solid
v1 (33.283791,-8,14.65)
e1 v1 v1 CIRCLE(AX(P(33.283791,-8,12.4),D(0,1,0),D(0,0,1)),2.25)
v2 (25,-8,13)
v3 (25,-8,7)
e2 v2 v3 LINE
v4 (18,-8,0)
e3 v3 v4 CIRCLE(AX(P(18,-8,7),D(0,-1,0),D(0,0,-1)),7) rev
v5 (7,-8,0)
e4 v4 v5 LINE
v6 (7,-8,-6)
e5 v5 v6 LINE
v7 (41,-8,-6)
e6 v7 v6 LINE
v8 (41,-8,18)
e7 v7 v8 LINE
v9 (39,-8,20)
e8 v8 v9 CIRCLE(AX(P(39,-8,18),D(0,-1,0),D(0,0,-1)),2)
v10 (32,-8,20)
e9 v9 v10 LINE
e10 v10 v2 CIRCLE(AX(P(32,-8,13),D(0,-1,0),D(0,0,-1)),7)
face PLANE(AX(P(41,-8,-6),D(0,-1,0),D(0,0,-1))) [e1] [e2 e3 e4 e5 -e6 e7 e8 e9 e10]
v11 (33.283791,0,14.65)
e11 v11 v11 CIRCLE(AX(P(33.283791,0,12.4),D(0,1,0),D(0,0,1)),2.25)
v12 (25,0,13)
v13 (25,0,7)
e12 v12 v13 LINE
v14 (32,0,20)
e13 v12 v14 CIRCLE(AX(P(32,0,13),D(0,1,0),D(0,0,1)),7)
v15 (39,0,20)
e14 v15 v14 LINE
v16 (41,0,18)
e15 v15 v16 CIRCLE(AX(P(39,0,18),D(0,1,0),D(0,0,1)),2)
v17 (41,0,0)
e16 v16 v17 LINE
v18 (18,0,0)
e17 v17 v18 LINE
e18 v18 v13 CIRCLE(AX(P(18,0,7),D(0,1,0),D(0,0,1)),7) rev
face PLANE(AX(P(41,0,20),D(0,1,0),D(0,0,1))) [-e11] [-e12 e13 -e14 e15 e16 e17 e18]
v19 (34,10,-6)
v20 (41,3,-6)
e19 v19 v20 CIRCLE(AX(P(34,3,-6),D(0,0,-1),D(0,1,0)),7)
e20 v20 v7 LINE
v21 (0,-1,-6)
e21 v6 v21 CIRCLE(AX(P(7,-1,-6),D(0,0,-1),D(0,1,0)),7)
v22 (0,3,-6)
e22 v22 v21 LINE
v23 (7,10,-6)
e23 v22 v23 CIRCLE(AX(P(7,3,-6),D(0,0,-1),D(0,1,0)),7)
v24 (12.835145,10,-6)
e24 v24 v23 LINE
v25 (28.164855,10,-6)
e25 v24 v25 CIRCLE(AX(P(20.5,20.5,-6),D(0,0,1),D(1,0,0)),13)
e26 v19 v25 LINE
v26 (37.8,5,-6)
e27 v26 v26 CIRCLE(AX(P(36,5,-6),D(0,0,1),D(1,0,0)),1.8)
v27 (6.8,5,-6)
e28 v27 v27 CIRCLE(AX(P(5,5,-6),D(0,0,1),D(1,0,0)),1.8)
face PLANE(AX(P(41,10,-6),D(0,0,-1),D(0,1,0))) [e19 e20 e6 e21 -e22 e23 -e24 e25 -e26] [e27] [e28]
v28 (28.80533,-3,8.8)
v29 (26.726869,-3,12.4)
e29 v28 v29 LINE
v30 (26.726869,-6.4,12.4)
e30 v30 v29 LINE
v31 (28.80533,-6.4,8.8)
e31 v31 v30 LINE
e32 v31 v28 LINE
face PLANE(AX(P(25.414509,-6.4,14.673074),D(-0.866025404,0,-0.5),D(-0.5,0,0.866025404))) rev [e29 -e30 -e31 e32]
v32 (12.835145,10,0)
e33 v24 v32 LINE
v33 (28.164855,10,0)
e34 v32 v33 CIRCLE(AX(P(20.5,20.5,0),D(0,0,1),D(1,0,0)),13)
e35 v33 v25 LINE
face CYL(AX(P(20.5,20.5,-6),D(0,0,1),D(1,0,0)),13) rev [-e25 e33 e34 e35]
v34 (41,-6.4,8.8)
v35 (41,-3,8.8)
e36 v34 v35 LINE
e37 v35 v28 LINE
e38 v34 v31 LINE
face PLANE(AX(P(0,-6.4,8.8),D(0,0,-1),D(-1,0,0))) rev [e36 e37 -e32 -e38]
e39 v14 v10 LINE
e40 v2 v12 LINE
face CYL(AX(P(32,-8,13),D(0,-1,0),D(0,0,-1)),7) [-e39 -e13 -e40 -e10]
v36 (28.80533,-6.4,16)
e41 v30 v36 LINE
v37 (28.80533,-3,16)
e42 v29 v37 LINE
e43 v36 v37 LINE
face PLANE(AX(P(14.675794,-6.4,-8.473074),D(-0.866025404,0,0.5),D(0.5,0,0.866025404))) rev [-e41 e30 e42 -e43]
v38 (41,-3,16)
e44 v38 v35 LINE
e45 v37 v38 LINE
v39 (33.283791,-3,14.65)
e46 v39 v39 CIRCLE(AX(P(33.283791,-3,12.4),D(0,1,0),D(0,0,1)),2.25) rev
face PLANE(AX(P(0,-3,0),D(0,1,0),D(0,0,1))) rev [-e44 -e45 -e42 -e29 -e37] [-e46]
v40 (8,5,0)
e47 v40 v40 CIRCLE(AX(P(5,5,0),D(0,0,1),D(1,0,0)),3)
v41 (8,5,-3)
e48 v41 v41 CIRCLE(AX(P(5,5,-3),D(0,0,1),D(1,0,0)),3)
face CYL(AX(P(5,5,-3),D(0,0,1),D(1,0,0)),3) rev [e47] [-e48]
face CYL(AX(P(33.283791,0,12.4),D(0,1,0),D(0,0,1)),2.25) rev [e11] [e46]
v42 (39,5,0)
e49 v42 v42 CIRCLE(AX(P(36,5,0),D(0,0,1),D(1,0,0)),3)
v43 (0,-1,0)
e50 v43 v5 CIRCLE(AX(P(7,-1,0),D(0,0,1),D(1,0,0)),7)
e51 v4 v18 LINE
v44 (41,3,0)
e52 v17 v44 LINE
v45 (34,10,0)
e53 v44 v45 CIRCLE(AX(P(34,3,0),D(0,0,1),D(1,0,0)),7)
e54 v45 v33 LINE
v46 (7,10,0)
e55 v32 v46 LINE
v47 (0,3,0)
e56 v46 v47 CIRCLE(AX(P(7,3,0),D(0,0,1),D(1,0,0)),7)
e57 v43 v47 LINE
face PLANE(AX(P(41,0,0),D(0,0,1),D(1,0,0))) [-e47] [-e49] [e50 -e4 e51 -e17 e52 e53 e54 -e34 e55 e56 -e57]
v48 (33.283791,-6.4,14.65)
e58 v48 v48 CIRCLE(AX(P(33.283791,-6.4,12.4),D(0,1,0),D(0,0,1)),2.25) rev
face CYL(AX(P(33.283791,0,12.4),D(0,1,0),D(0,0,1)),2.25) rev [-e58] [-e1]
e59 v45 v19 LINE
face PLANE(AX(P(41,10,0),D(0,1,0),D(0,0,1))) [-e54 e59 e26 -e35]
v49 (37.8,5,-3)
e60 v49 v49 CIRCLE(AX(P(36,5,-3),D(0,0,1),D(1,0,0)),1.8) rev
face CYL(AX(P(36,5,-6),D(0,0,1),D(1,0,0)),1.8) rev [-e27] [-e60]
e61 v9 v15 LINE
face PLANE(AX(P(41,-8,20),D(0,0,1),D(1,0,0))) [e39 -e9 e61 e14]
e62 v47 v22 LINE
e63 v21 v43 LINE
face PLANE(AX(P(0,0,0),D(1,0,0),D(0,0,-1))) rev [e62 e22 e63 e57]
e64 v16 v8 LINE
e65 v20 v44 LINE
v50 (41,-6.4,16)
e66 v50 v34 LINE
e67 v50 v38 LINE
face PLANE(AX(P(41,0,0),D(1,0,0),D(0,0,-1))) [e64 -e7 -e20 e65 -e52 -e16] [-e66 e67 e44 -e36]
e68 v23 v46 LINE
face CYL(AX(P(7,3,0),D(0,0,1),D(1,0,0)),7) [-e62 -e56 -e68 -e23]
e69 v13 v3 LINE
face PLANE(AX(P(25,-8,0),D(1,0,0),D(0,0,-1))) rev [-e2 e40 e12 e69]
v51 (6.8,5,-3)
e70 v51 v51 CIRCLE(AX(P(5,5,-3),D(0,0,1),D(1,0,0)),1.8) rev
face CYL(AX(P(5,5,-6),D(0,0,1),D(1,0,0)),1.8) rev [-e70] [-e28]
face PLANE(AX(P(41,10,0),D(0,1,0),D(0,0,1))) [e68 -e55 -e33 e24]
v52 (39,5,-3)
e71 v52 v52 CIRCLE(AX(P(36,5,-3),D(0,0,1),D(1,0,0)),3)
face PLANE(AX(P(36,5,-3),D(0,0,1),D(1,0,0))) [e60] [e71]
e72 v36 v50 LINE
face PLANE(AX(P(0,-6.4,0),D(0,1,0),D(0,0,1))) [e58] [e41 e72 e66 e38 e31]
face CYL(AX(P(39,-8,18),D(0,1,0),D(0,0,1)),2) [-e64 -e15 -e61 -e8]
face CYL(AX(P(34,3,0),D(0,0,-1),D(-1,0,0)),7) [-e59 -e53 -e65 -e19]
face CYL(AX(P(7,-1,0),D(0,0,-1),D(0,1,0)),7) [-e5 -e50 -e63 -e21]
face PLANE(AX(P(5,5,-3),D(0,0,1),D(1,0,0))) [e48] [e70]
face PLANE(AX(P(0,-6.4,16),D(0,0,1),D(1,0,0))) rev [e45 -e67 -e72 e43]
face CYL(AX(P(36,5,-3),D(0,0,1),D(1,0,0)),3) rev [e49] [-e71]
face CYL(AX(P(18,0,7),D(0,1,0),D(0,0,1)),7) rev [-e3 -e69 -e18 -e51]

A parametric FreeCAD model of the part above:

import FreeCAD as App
import Part
import Sketcher
from FreeCAD import Vector
Q = App.Units.Quantity


def edges_at(feature, points):
    """Names of the edges that pass closest to the given points."""
    edges = feature.Shape.Edges
    near = lambda p: min(range(len(edges)), key=lambda i: edges[i].distToShape(Part.Vertex(*p))[0])
    return sorted({f"Edge{near(p) + 1}" for p in points})


def add_polygon(sketch, points):
    """Adds a closed chain of lines whose ends are joined by coincident constraints."""
    first, n = sketch.GeometryCount, len(points)
    for a, b in zip(points, points[1:] + points[:1]):
        sketch.addGeometry(Part.LineSegment(App.Vector(*a, 0), App.Vector(*b, 0)), False)
    for i in range(n):
        sketch.addConstraint(Sketcher.Constraint("Coincident", first + i, 2, first + (i + 1) % n, 1))

doc = App.newDocument("Part")
body = doc.addObject("PartDesign::Body", "Body")

# Sketch on YZ plane
sketch1 = body.newObject("Sketcher::SketchObject", "Sketch")
sketch1.AttachmentSupport = (doc.getObject("YZ_Plane"), [""])
sketch1.MapMode = "FlatFace"
add_polygon(sketch1, [(10, 0), (0, 0), (0, 20), (-8, 20), (-8, -6), (10, -6)])  # lines 0-5
sketch1.addConstraint([
    Sketcher.Constraint("Horizontal", 0),
    Sketcher.Constraint("Vertical", 1),
    Sketcher.Constraint("Horizontal", 2),
    Sketcher.Constraint("Vertical", 3),
    Sketcher.Constraint("Horizontal", 4),
    Sketcher.Constraint("Vertical", 5),
    Sketcher.Constraint("Coincident", 0, 2, -1, 1),
    Sketcher.Constraint("DistanceX", 0, 2, 0, 1, Q("10 mm")),
    Sketcher.Constraint("DistanceX", 2, 2, 2, 1, Q("8 mm")),
    Sketcher.Constraint("DistanceY", 1, 1, 1, 2, Q("20 mm")),
    Sketcher.Constraint("DistanceY", 3, 2, 3, 1, Q("26 mm")),
])
pad1 = body.newObject("PartDesign::Pad", "Pad")
pad1.Profile = sketch1
pad1.Length = 41

# Sketch on XY plane
sketch2 = body.newObject("Sketcher::SketchObject", "Sketch001")
sketch2.AttachmentSupport = (doc.getObject("XY_Plane"), [""])
sketch2.MapMode = "FlatFace"
sketch2.addGeometry([
    Part.Circle(Vector(5, 5, 0), Vector(0, 0, 1), 1.8),
    Part.Circle(Vector(36, 5, 0), Vector(0, 0, 1), 1.8),
    Part.Circle(Vector(20.5, 20.5, 0), Vector(0, 0, 1), 13),
], False)
sketch2.addConstraint([
    Sketcher.Constraint("Equal", 0, 1),
    Sketcher.Constraint("Horizontal", 0, 3, 1, 3),
    Sketcher.Constraint("Diameter", 2, Q("26 mm")),
    Sketcher.Constraint("Diameter", 0, Q("3.6 mm")),
    Sketcher.Constraint("DistanceX", -1, 1, 0, 3, Q("5 mm")),
    Sketcher.Constraint("DistanceY", -1, 1, 0, 3, Q("5 mm")),
    Sketcher.Constraint("DistanceX", -1, 1, 1, 3, Q("36 mm")),
    Sketcher.Constraint("DistanceX", -1, 1, 2, 3, Q("20.5 mm")),
    Sketcher.Constraint("DistanceY", -1, 1, 2, 3, Q("20.5 mm")),
])
pocket1 = body.newObject("PartDesign::Pocket", "Pocket")
pocket1.Profile = sketch2
pocket1.Type = "ThroughAll"

# Sketch on XZ plane
sketch3 = body.newObject("Sketcher::SketchObject", "Sketch002")
sketch3.AttachmentSupport = (doc.getObject("XZ_Plane"), [""])
sketch3.MapMode = "FlatFace"
sketch3.addGeometry(Part.Circle(Vector(33.3, 12.4, 0), Vector(0, 0, 1), 2.2), False)
sketch3.addConstraint([
    Sketcher.Constraint("Diameter", 0, Q("4.5 mm")),
    Sketcher.Constraint("DistanceY", -1, 1, 0, 3, Q("12.4 mm")),
    Sketcher.Constraint("DistanceX", -1, 1, 0, 3, Q("33.283791 mm")),
])
doc.recompute()
hole = body.newObject("PartDesign::Hole", "Hole")
hole.Profile = sketch3
hole.ThreadType = "None"
hole.Diameter = 4.5
hole.DepthType = "ThroughAll"
hole.Reversed = True

# Sketch on XY plane
sketch4 = body.newObject("Sketcher::SketchObject", "Sketch003")
sketch4.AttachmentSupport = (doc.getObject("XY_Plane"), [""])
sketch4.MapMode = "FlatFace"
sketch4.addGeometry([
    Part.Circle(Vector(5, 5, 0), Vector(0, 0, 1), 3),
    Part.Circle(Vector(36, 5, 0), Vector(0, 0, 1), 3),
], False)
sketch4.addConstraint([
    Sketcher.Constraint("Equal", 0, 1),
    Sketcher.Constraint("Horizontal", 0, 3, 1, 3),
    Sketcher.Constraint("Diameter", 0, Q("6 mm")),
    Sketcher.Constraint("DistanceX", -1, 1, 0, 3, Q("5 mm")),
    Sketcher.Constraint("DistanceY", -1, 1, 0, 3, Q("5 mm")),
    Sketcher.Constraint("DistanceX", -1, 1, 1, 3, Q("36 mm")),
])
pocket2 = body.newObject("PartDesign::Pocket", "Pocket001")
pocket2.Profile = sketch4
pocket2.Length = 3

# Sketch on XZ plane
sketch5 = body.newObject("Sketcher::SketchObject", "Sketch004")
sketch5.AttachmentSupport = (doc.getObject("XZ_Plane"), [""])
sketch5.MapMode = "FlatFace"
sketch5.AttachmentOffset = App.Placement(Vector(0, 0, 6.4), App.Rotation())
add_polygon(sketch5, [(28.8, 8.8), (26.7, 12.4), (28.8, 16), (41, 16), (41, 8.8)])  # lines 0-4
sketch5.addConstraint([
    Sketcher.Constraint("Horizontal", 2),
    Sketcher.Constraint("Vertical", 3),
    Sketcher.Constraint("Horizontal", 4),
    Sketcher.Constraint("Vertical", 1, 2, 4, 2),
    Sketcher.Constraint("Equal", 0, 1),
    Sketcher.Constraint("Angle", 0, Q("120 deg")),
    Sketcher.Constraint("DistanceY", 3, 2, 3, 1, Q("7.2 mm")),
    Sketcher.Constraint("DistanceY", -1, 1, 1, 2, Q("16 mm")),
    Sketcher.Constraint("DistanceX", -1, 1, 2, 2, Q("41 mm")),
    Sketcher.Constraint("DistanceX", 2, 1, 2, 2, Q("12.19467 mm")),
])
pocket3 = body.newObject("PartDesign::Pocket", "Pocket002")
pocket3.Profile = sketch5
pocket3.Length = 3.4
doc.recompute()

fillet = body.newObject("PartDesign::Fillet", "Fillet")
fillet.Base = (pocket3, edges_at(pocket3, [(41, -4, 20)]))
fillet.Radius = 2

# Sketch on XZ plane
sketch6 = body.newObject("Sketcher::SketchObject", "Sketch005")
sketch6.AttachmentSupport = (doc.getObject("XZ_Plane"), [""])
sketch6.MapMode = "FlatFace"
add_polygon(sketch6, [(0, 0), (0, 20), (25, 20), (25, 0)])  # lines 0-3
sketch6.addConstraint([
    Sketcher.Constraint("Vertical", 0),
    Sketcher.Constraint("Horizontal", 1),
    Sketcher.Constraint("Vertical", 2),
    Sketcher.Constraint("Horizontal", 3),
    Sketcher.Constraint("Coincident", 3, 2, -1, 1),
    Sketcher.Constraint("DistanceX", 1, 1, 1, 2, Q("25 mm")),
    Sketcher.Constraint("DistanceY", 0, 1, 0, 2, Q("20 mm")),
])
pocket4 = body.newObject("PartDesign::Pocket", "Pocket003")
pocket4.Profile = sketch6
pocket4.Type = "ThroughAll"
pocket4.Reversed = True
doc.recompute()

fillet2 = body.newObject("PartDesign::Fillet", "Fillet001")
fillet2.Base = (pocket4, edges_at(pocket4, [
    (41, 10, -3),
    (0, -8, -3),
    (0, 10, -3),
    (25, -4, 0),
    (25, -4, 20),
]))
fillet2.Radius = 7

doc.recompute()
